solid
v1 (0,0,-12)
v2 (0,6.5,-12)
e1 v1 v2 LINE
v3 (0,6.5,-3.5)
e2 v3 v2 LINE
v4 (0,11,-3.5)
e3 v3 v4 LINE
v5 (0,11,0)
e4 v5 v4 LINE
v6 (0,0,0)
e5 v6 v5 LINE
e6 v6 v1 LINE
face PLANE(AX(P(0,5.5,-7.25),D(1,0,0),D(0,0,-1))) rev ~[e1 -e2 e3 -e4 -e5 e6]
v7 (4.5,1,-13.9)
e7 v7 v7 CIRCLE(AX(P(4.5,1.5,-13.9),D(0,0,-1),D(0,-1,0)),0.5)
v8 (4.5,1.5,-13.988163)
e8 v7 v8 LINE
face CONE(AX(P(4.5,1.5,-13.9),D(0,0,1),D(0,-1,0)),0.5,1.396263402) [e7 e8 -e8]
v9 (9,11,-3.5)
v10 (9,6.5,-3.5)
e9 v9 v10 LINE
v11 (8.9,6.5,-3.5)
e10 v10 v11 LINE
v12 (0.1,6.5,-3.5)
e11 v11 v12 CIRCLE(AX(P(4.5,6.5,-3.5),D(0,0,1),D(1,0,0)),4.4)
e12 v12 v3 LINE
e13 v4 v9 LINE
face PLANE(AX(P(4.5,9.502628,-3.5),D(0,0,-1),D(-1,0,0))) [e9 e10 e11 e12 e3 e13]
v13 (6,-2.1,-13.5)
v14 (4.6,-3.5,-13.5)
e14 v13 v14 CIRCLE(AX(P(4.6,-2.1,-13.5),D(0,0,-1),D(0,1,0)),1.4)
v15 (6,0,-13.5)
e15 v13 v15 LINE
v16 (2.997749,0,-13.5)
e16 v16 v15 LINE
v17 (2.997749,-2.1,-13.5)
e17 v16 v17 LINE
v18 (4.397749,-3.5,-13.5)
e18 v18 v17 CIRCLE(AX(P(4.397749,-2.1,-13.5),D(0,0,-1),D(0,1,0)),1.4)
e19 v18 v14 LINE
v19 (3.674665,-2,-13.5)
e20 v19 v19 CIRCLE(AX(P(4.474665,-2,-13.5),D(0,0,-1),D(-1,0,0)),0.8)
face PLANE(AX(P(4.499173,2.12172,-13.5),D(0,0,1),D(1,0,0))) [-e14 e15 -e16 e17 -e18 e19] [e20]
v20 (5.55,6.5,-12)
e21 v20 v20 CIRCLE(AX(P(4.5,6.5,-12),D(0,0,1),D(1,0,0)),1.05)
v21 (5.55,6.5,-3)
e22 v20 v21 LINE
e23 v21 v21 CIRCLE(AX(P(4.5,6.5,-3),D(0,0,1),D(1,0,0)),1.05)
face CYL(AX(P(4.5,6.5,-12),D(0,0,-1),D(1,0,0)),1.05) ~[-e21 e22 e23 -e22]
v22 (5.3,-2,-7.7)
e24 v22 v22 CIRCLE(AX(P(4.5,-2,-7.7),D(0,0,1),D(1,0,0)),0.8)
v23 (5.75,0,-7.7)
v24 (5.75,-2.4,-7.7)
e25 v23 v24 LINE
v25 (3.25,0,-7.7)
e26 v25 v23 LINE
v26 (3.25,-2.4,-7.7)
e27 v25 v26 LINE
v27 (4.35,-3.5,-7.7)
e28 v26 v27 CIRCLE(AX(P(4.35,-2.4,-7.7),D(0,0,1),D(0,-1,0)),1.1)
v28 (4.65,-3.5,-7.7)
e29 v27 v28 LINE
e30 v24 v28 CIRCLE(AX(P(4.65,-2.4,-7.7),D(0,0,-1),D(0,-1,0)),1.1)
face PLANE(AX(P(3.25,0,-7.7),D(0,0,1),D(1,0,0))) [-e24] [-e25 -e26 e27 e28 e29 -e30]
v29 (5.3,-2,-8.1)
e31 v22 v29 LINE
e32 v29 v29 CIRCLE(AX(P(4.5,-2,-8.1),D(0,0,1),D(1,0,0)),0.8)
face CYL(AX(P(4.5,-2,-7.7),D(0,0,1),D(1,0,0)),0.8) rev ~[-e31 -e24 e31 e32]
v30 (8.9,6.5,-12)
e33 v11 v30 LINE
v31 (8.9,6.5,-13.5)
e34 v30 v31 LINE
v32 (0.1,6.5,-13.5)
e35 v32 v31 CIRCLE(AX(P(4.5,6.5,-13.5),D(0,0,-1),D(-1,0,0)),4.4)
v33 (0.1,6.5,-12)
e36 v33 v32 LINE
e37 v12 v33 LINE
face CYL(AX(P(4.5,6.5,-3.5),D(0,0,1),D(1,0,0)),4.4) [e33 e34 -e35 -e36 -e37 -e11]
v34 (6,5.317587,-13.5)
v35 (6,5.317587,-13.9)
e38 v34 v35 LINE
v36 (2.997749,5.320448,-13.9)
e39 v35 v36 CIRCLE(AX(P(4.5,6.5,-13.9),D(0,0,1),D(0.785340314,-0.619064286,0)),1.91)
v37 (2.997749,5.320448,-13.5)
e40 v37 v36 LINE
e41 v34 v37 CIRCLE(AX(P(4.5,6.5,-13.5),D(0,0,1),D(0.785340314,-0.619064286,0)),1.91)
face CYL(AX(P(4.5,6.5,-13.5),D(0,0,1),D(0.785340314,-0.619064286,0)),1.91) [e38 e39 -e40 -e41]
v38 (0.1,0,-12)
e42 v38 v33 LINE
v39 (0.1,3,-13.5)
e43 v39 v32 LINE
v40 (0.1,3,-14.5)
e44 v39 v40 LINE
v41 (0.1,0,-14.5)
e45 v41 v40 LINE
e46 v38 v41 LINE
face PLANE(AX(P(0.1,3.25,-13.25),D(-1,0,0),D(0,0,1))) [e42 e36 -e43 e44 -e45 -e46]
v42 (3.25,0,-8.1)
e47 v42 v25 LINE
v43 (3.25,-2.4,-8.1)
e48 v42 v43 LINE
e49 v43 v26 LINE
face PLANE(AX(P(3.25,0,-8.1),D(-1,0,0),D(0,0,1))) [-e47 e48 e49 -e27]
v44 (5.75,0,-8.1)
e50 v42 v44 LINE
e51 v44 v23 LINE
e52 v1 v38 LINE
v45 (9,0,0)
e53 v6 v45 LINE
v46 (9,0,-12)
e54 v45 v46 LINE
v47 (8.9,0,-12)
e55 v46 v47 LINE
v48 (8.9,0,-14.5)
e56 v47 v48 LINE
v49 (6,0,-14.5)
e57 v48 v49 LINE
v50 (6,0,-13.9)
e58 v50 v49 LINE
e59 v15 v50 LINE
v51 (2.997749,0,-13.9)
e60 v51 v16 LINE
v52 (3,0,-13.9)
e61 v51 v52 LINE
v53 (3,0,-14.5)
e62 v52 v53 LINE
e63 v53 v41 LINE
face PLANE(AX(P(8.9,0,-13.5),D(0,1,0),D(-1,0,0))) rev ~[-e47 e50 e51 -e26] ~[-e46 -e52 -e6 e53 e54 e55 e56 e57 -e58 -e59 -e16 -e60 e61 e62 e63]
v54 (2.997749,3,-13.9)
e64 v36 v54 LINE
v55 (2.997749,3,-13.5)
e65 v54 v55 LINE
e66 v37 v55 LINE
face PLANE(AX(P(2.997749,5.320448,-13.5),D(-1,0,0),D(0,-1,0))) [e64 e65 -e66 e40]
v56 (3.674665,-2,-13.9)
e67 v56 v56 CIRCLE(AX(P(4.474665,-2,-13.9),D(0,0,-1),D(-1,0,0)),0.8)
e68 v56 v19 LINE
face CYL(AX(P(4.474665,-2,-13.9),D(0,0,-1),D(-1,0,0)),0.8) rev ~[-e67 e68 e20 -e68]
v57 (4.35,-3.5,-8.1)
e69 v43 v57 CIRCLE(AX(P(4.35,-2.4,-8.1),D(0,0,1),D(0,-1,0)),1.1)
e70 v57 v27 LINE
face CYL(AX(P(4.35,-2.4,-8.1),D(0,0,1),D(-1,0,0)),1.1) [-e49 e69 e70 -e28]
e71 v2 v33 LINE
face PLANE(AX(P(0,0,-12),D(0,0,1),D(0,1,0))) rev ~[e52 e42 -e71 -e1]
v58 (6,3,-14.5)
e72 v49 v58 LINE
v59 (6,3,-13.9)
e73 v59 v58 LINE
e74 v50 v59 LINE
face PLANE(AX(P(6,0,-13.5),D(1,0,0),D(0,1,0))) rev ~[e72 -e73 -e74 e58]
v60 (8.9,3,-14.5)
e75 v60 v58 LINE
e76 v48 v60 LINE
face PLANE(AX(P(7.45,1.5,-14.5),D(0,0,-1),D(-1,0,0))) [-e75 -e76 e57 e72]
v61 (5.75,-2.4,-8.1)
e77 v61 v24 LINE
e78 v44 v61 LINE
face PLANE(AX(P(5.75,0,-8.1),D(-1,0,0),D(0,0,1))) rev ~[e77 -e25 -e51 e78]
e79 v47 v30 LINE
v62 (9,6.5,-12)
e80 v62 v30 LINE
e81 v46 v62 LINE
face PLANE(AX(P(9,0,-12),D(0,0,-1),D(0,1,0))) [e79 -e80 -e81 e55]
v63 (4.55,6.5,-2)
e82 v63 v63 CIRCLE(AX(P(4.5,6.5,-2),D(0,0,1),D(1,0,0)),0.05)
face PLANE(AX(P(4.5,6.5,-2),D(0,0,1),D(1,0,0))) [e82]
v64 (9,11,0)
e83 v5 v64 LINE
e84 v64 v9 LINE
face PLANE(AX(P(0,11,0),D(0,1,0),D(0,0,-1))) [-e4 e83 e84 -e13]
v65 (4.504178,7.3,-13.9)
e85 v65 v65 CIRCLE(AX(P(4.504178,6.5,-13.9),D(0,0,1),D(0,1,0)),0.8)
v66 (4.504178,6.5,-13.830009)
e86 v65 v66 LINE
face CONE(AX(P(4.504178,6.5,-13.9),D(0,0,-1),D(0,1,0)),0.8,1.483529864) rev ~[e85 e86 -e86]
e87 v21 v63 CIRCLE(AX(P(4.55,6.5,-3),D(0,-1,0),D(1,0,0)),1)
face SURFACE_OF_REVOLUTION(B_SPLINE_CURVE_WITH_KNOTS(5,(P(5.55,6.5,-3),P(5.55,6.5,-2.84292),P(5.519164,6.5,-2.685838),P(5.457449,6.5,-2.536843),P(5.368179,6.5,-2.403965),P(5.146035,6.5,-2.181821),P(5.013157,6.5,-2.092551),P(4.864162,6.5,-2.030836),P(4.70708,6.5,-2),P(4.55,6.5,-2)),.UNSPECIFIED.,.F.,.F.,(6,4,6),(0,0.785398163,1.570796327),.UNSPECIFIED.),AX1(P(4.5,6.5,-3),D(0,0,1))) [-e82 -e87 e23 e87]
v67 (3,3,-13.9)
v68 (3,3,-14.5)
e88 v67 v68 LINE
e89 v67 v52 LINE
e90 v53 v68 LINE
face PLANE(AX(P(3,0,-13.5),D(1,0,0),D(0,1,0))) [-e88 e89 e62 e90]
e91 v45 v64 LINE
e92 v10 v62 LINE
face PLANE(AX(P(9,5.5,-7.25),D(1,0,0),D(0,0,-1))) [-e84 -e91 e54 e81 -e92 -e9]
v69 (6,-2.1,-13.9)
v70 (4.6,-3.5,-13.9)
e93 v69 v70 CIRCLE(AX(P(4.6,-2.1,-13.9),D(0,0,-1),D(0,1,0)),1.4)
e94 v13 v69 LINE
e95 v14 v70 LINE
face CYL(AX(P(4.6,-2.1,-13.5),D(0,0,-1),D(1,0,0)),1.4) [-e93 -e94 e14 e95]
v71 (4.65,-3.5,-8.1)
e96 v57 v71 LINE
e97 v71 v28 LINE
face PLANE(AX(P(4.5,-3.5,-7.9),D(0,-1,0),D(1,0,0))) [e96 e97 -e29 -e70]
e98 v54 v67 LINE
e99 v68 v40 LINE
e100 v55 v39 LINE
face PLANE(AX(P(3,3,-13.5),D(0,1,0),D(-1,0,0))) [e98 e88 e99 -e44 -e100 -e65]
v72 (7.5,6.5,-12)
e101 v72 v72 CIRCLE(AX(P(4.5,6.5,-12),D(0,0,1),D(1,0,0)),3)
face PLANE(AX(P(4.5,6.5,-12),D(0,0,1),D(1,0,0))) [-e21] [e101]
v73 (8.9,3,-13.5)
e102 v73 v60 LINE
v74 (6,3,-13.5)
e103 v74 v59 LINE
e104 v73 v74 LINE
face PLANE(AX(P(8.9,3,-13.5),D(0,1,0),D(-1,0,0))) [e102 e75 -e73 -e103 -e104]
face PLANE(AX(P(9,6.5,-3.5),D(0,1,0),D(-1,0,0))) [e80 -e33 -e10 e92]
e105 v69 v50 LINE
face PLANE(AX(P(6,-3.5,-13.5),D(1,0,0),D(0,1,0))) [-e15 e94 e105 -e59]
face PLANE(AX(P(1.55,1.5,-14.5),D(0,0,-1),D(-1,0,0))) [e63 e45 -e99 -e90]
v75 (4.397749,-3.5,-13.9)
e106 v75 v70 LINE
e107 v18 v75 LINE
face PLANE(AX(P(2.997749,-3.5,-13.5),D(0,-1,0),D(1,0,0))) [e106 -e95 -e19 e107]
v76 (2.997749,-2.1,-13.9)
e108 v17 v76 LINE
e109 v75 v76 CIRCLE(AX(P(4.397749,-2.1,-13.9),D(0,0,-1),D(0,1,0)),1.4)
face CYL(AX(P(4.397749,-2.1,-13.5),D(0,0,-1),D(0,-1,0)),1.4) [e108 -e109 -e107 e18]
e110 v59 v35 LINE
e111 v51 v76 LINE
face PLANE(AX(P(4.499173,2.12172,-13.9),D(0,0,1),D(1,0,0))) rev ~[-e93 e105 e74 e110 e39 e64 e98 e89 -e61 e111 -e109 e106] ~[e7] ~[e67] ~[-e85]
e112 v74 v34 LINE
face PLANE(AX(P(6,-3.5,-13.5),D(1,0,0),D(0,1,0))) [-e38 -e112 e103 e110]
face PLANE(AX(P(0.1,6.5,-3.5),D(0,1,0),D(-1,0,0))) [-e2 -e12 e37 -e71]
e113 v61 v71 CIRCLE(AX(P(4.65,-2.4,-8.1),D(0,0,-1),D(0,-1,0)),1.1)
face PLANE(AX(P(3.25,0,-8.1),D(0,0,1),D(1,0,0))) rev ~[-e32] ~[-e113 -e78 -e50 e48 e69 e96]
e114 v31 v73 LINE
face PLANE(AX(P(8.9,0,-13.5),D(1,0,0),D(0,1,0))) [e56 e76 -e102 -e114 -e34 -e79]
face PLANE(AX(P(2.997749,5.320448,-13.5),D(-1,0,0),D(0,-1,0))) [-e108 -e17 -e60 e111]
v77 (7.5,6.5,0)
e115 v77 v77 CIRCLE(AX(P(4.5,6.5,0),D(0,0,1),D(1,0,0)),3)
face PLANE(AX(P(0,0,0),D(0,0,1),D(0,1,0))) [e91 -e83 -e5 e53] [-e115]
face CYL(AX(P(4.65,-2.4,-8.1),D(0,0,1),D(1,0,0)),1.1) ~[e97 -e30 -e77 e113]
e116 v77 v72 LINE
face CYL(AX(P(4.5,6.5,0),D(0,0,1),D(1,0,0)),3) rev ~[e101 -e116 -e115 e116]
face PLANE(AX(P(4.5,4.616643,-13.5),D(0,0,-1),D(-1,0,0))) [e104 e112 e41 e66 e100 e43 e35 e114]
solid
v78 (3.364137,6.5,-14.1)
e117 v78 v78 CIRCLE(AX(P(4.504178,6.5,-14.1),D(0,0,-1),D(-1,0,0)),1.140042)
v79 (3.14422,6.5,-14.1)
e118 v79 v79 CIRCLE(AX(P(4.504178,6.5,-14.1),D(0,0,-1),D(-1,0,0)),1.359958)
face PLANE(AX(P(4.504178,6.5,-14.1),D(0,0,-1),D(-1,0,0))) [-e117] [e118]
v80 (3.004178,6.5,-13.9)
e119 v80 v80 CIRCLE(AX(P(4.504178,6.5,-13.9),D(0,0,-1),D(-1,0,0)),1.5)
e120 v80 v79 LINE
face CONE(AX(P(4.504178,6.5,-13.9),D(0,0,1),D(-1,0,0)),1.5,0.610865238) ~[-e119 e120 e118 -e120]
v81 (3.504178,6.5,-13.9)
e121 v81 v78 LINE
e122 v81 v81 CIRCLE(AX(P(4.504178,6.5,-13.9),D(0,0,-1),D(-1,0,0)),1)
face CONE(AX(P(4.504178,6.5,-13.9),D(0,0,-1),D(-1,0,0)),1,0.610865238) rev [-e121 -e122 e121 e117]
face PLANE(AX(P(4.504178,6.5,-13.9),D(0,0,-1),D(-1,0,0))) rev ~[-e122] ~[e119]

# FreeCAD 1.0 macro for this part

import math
import FreeCAD as App
import Part
import Sketcher
Q = App.Units.Quantity


def edges_at(feature, points):
    """Names of the edges that pass closest to the given points."""
    edges = feature.Shape.Edges
    near = lambda p: min(range(len(edges)), key=lambda i: edges[i].distToShape(Part.Vertex(*p))[0])
    return sorted({f"Edge{near(p) + 1}" for p in points})


def faces_at(feature, points):
    """Names of the faces that lie closest to the given points."""
    faces = feature.Shape.Faces
    near = lambda p: min(range(len(faces)), key=lambda i: faces[i].distToShape(Part.Vertex(*p))[0])
    return sorted({f"Face{near(p) + 1}" for p in points})

doc = App.newDocument("Part")
body = doc.addObject("PartDesign::Body", "Body")

sketch1 = doc.addObject("Sketcher::SketchObject", "Sketch")
body.addObject(sketch1)
sketch1.AttachmentSupport = (doc.YZ_Plane, [""])
sketch1.MapMode = "FlatFace"
sketch1.addGeometry([
    Part.LineSegment(App.Vector(11, 0, 0), App.Vector(0, 0, 0)),
    Part.LineSegment(App.Vector(0, 0, 0), App.Vector(0, -14, 0)),
    Part.LineSegment(App.Vector(0, -14, 0), App.Vector(11, -14, 0)),
    Part.LineSegment(App.Vector(11, -14, 0), App.Vector(11, 0, 0)),
], False)
sketch1.addConstraint([
    Sketcher.Constraint("Coincident", 0, 2, 1, 1),
    Sketcher.Constraint("Coincident", 1, 2, 2, 1),
    Sketcher.Constraint("Coincident", 2, 2, 3, 1),
    Sketcher.Constraint("Coincident", 3, 2, 0, 1),
    Sketcher.Constraint("Horizontal", 0),
    Sketcher.Constraint("Vertical", 1),
    Sketcher.Constraint("Horizontal", 2),
    Sketcher.Constraint("Vertical", 3),
    Sketcher.Constraint("Coincident", 0, 2, -1, 1),
    Sketcher.Constraint("DistanceX", 0, 2, 0, 1, 11.0),
    Sketcher.Constraint("DistanceY", 1, 2, 1, 1, 14.5),
])
pad1 = doc.addObject("PartDesign::Pad", "Pad")
body.addObject(pad1)
pad1.Profile = sketch1
pad1.Length = 9

sketch2 = doc.addObject("Sketcher::SketchObject", "Sketch001")
body.addObject(sketch2)
sketch2.AttachmentSupport = (doc.XY_Plane, [""])
sketch2.MapMode = "FlatFace"
sketch2.AttachmentOffset = App.Placement(App.Vector(0, 0, -14.5), App.Rotation())
sketch2.addGeometry([
    Part.LineSegment(App.Vector(9, 6.5, 0), App.Vector(8.9, 6.5, 0)),
    Part.ArcOfCircle(Part.Circle(App.Vector(4.5, 6.5, 0), App.Vector(0, 0, 1), 4.4), math.radians(0), math.radians(180)),
    Part.LineSegment(App.Vector(0.1, 6.5, 0), App.Vector(0, 6.5, 0)),
    Part.LineSegment(App.Vector(0, 6.5, 0), App.Vector(0, 11, 0)),
    Part.LineSegment(App.Vector(0, 11, 0), App.Vector(9, 11, 0)),
    Part.LineSegment(App.Vector(9, 11, 0), App.Vector(9, 6.5, 0)),
], False)
sketch2.addConstraint([
    Sketcher.Constraint("Coincident", 0, 2, 1, 1),
    Sketcher.Constraint("Coincident", 1, 2, 2, 1),
    Sketcher.Constraint("Coincident", 2, 2, 3, 1),
    Sketcher.Constraint("Coincident", 3, 2, 4, 1),
    Sketcher.Constraint("Coincident", 4, 2, 5, 1),
    Sketcher.Constraint("Coincident", 5, 2, 0, 1),
    Sketcher.Constraint("Horizontal", 0),
    Sketcher.Constraint("Horizontal", 2),
    Sketcher.Constraint("Vertical", 3),
    Sketcher.Constraint("Horizontal", 4),
    Sketcher.Constraint("Vertical", 5),
    Sketcher.Constraint("PointOnObject", 2, 2, -2),
    Sketcher.Constraint("Horizontal", 1, 3, 0, 2),
    Sketcher.Constraint("Horizontal", 0, 2, 1, 2),
    Sketcher.Constraint("Equal", 0, 2),
    Sketcher.Constraint("Radius", 1, 4.4),
    Sketcher.Constraint("DistanceX", 4, 1, 4, 2, 9.0),
    Sketcher.Constraint("DistanceY", 3, 1, 3, 2, 4.5),
    Sketcher.Constraint("DistanceY", -1, 1, 3, 2, 11.0),
])
pocket1 = doc.addObject("PartDesign::Pocket", "Pocket")
body.addObject(pocket1)
pocket1.Profile = sketch2
pocket1.Type = "TwoLengths"
pocket1.Length = 21.303941
pocket1.Length2 = 11

sketch3 = doc.addObject("Sketcher::SketchObject", "Sketch002")
body.addObject(sketch3)
sketch3.AttachmentSupport = (doc.YZ_Plane, [""])
sketch3.MapMode = "FlatFace"
sketch3.addGeometry([
    Part.LineSegment(App.Vector(6.5, -14.5, 0), App.Vector(0, -14.5, 0)),
    Part.LineSegment(App.Vector(0, -14.5, 0), App.Vector(0, -12, 0)),
    Part.LineSegment(App.Vector(0, -12, 0), App.Vector(6.5, -12, 0)),
    Part.LineSegment(App.Vector(6.5, -12, 0), App.Vector(6.5, -14.5, 0)),
], False)
sketch3.addConstraint([
    Sketcher.Constraint("Coincident", 0, 2, 1, 1),
    Sketcher.Constraint("Coincident", 1, 2, 2, 1),
    Sketcher.Constraint("Coincident", 2, 2, 3, 1),
    Sketcher.Constraint("Coincident", 3, 2, 0, 1),
    Sketcher.Constraint("Horizontal", 0),
    Sketcher.Constraint("Vertical", 1),
    Sketcher.Constraint("Horizontal", 2),
    Sketcher.Constraint("Vertical", 3),
    Sketcher.Constraint("PointOnObject", 0, 2, -2),
    Sketcher.Constraint("DistanceX", 0, 2, 0, 1, 6.5),
    Sketcher.Constraint("DistanceY", 1, 1, 1, 2, 2.5),
    Sketcher.Constraint("DistanceY", 1, 2, -1, 1, 12.0),
])
pocket2 = doc.addObject("PartDesign::Pocket", "Pocket001")
body.addObject(pocket2)
pocket2.Profile = sketch3
pocket2.Length = 0.1
pocket2.Reversed = True

sketch4 = doc.addObject("Sketcher::SketchObject", "Sketch003")
body.addObject(sketch4)
sketch4.AttachmentSupport = (doc.YZ_Plane, [""])
sketch4.MapMode = "FlatFace"
sketch4.AttachmentOffset = App.Placement(App.Vector(0, 0, 9), App.Rotation())
sketch4.addGeometry([
    Part.LineSegment(App.Vector(6.5, -12, 0), App.Vector(0, -12, 0)),
    Part.LineSegment(App.Vector(0, -12, 0), App.Vector(0, -14.5, 0)),
    Part.LineSegment(App.Vector(0, -14.5, 0), App.Vector(6.5, -14.5, 0)),
    Part.LineSegment(App.Vector(6.5, -14.5, 0), App.Vector(6.5, -12, 0)),
], False)
sketch4.addConstraint([
    Sketcher.Constraint("Coincident", 0, 2, 1, 1),
    Sketcher.Constraint("Coincident", 1, 2, 2, 1),
    Sketcher.Constraint("Coincident", 2, 2, 3, 1),
    Sketcher.Constraint("Coincident", 3, 2, 0, 1),
    Sketcher.Constraint("Horizontal", 0),
    Sketcher.Constraint("Vertical", 1),
    Sketcher.Constraint("Horizontal", 2),
    Sketcher.Constraint("Vertical", 3),
    Sketcher.Constraint("PointOnObject", 0, 2, -2),
    Sketcher.Constraint("DistanceX", 0, 2, 0, 1, 6.5),
    Sketcher.Constraint("DistanceY", 1, 2, 1, 1, 2.5),
    Sketcher.Constraint("DistanceY", 0, 2, -1, 1, 12.0),
])
pocket3 = doc.addObject("PartDesign::Pocket", "Pocket002")
body.addObject(pocket3)
pocket3.Profile = sketch4
pocket3.Length = 0.1

sketch5 = doc.addObject("Sketcher::SketchObject", "Sketch004")
body.addObject(sketch5)
sketch5.AttachmentSupport = (doc.XY_Plane, [""])
sketch5.MapMode = "FlatFace"
sketch5.AttachmentOffset = App.Placement(App.Vector(0, 0, -13.5), App.Rotation())
sketch5.addGeometry([
    Part.LineSegment(App.Vector(8.9, 6.5, 0), App.Vector(8.9, 0, 0)),
    Part.LineSegment(App.Vector(8.9, 0, 0), App.Vector(0.1, 0, 0)),
    Part.LineSegment(App.Vector(0.1, 0, 0), App.Vector(0.1, 6.5, 0)),
    Part.ArcOfCircle(Part.Circle(App.Vector(4.5, 6.5, 0), App.Vector(0, 0, 1), 4.4), math.radians(0), math.radians(180)),
], False)
sketch5.addConstraint([
    Sketcher.Constraint("Coincident", 0, 2, 1, 1),
    Sketcher.Constraint("Coincident", 1, 2, 2, 1),
    Sketcher.Constraint("Tangent", 2, 2, 3, 2),
    Sketcher.Constraint("Tangent", 3, 1, 0, 1),
    Sketcher.Constraint("Vertical", 0),
    Sketcher.Constraint("Horizontal", 1),
    Sketcher.Constraint("Vertical", 2),
    Sketcher.Constraint("PointOnObject", 0, 2, -1),
    Sketcher.Constraint("Radius", 3, 4.4),
    Sketcher.Constraint("DistanceY", 0, 2, 0, 1, 6.5),
    Sketcher.Constraint("DistanceX", -1, 1, 3, 3, 4.5),
])
pocket4 = doc.addObject("PartDesign::Pocket", "Pocket003")
body.addObject(pocket4)
pocket4.Profile = sketch5
pocket4.Length = 1

sketch6 = doc.addObject("Sketcher::SketchObject", "Sketch005")
body.addObject(sketch6)
sketch6.AttachmentSupport = (doc.XY_Plane, [""])
sketch6.MapMode = "FlatFace"
sketch6.AttachmentOffset = App.Placement(App.Vector(0, 0, -13.5), App.Rotation())
sketch6.addGeometry([
    Part.LineSegment(App.Vector(8.9, 3, 0), App.Vector(8.9, 0, 0)),
    Part.LineSegment(App.Vector(8.9, 0, 0), App.Vector(6, 0, 0)),
    Part.LineSegment(App.Vector(6, 0, 0), App.Vector(6, 3, 0)),
    Part.LineSegment(App.Vector(6, 3, 0), App.Vector(8.9, 3, 0)),
    Part.LineSegment(App.Vector(3, 3, 0), App.Vector(3, 0, 0)),
    Part.LineSegment(App.Vector(3, 0, 0), App.Vector(0.1, 0, 0)),
    Part.LineSegment(App.Vector(0.1, 0, 0), App.Vector(0.1, 3, 0)),
    Part.LineSegment(App.Vector(0.1, 3, 0), App.Vector(3, 3, 0)),
], False)
sketch6.addConstraint([
    Sketcher.Constraint("Coincident", 0, 2, 1, 1),
    Sketcher.Constraint("Coincident", 1, 2, 2, 1),
    Sketcher.Constraint("Coincident", 2, 2, 3, 1),
    Sketcher.Constraint("Coincident", 3, 2, 0, 1),
    Sketcher.Constraint("Coincident", 4, 2, 5, 1),
    Sketcher.Constraint("Coincident", 5, 2, 6, 1),
    Sketcher.Constraint("Coincident", 6, 2, 7, 1),
    Sketcher.Constraint("Coincident", 7, 2, 4, 1),
    Sketcher.Constraint("Vertical", 0),
    Sketcher.Constraint("Horizontal", 1),
    Sketcher.Constraint("Vertical", 2),
    Sketcher.Constraint("Horizontal", 3),
    Sketcher.Constraint("Vertical", 4),
    Sketcher.Constraint("Horizontal", 5),
    Sketcher.Constraint("Vertical", 6),
    Sketcher.Constraint("Horizontal", 7),
    Sketcher.Constraint("PointOnObject", 0, 2, -1),
    Sketcher.Constraint("PointOnObject", 4, 2, -1),
    Sketcher.Constraint("Horizontal", 3, 2, 6, 2),
    Sketcher.Constraint("Equal", 3, 5),
    Sketcher.Constraint("DistanceY", 0, 2, 0, 1, 3.0),
    Sketcher.Constraint("DistanceX", 1, 2, 1, 1, 2.9),
    Sketcher.Constraint("DistanceX", -1, 1, 1, 2, 6.0),
    Sketcher.Constraint("DistanceX", -1, 1, 4, 2, 3.0),
])
pad2 = doc.addObject("PartDesign::Pad", "Pad001")
body.addObject(pad2)
pad2.Profile = sketch6
pad2.Length = 1
pad2.Reversed = True

sketch7 = doc.addObject("Sketcher::SketchObject", "Sketch006")
body.addObject(sketch7)
sketch7.AttachmentSupport = (doc.XY_Plane, [""])
sketch7.MapMode = "FlatFace"
sketch7.addGeometry(Part.Circle(App.Vector(4.5, 6.5, 0), App.Vector(0, 0, 1), 3), False)
sketch7.addConstraint([
    Sketcher.Constraint("Diameter", 0, 6.0),
    Sketcher.Constraint("DistanceX", -1, 1, 0, 3, 4.5),
    Sketcher.Constraint("DistanceY", -1, 1, 0, 3, 6.5),
])
pocket5 = doc.addObject("PartDesign::Pocket", "Pocket004")
body.addObject(pocket5)
pocket5.Profile = sketch7
pocket5.Length = 12
body2 = doc.addObject("PartDesign::Body", "Body001")

sketch8 = doc.addObject("Sketcher::SketchObject", "Sketch007")
body2.addObject(sketch8)
sketch8.AttachmentSupport = (doc.getObject("XY_Plane001"), [""])
sketch8.MapMode = "FlatFace"
sketch8.AttachmentOffset = App.Placement(App.Vector(0, 0, -13.5), App.Rotation())
sketch8.addGeometry([
    Part.ArcOfCircle(Part.Circle(App.Vector(4.5, 6.5, 0), App.Vector(0, 0, 1), 1.9), math.radians(-38), math.radians(218)),
    Part.LineSegment(App.Vector(6, 5.3, 0), App.Vector(6, -3.5, 0)),
    Part.LineSegment(App.Vector(6, -3.5, 0), App.Vector(3, -3.5, 0)),
    Part.LineSegment(App.Vector(3, -3.5, 0), App.Vector(3, 5.3, 0)),
], False)
sketch8.addConstraint([
    Sketcher.Constraint("Coincident", 0, 1, 1, 1),
    Sketcher.Constraint("Coincident", 1, 2, 2, 1),
    Sketcher.Constraint("Coincident", 2, 2, 3, 1),
    Sketcher.Constraint("Coincident", 3, 2, 0, 2),
    Sketcher.Constraint("Vertical", 1),
    Sketcher.Constraint("Horizontal", 2),
    Sketcher.Constraint("Vertical", 3),
    Sketcher.Constraint("Radius", 0, 1.91),
    Sketcher.Constraint("DistanceX", -1, 1, 0, 1, 6.0),
    Sketcher.Constraint("DistanceY", 1, 2, 0, 3, 10.0),
    Sketcher.Constraint("DistanceX", -1, 1, 0, 3, 4.5),
    Sketcher.Constraint("DistanceY", -1, 1, 0, 3, 6.5),
    Sketcher.Constraint("DistanceX", 2, 2, 2, 1, 3.002251),
])
pad3 = doc.addObject("PartDesign::Pad", "Pad002")
body2.addObject(pad3)
pad3.Profile = sketch8
pad3.Length = 0.4
pad3.Reversed = True
doc.recompute()

boolean = doc.addObject("PartDesign::Boolean", "Boolean")
body.addObject(boolean)
boolean.Type = "Fuse"
boolean.addObjects([body2])

sketch9 = doc.addObject("Sketcher::SketchObject", "Sketch008")
body.addObject(sketch9)
sketch9.AttachmentSupport = (doc.YZ_Plane, [""])
sketch9.MapMode = "FlatFace"
sketch9.AttachmentOffset = App.Placement(App.Vector(0, 0, 4.5), App.Rotation())
sketch9.addGeometry([
    Part.LineSegment(App.Vector(1.5, -13.9, 0), App.Vector(1, -13.9, 0)),
    Part.LineSegment(App.Vector(1, -13.9, 0), App.Vector(1.5, -13.99, 0)),
    Part.LineSegment(App.Vector(1.5, -13.99, 0), App.Vector(1.5, -13.9, 0)),
], False)
sketch9.addGeometry(Part.LineSegment(App.Vector(1.5, -13.9, 0), App.Vector(1.5, -13.99, 0)), True)
sketch9.addConstraint([
    Sketcher.Constraint("Coincident", 0, 2, 1, 1),
    Sketcher.Constraint("Coincident", 1, 2, 2, 1),
    Sketcher.Constraint("Coincident", 2, 2, 0, 1),
    Sketcher.Constraint("Horizontal", 0),
    Sketcher.Constraint("Vertical", 2),
    Sketcher.Constraint("Vertical", 3),
    Sketcher.Constraint("Coincident", 3, 1, 2, 2),
    Sketcher.Constraint("Equal", 2, 3),
    Sketcher.Constraint("Angle", 1, Q("-10 deg")),
    Sketcher.Constraint("DistanceX", 0, 2, 0, 1, 0.5),
    Sketcher.Constraint("DistanceX", -1, 1, 0, 2, 1.0),
    Sketcher.Constraint("DistanceY", 0, 2, -1, 1, 13.9),
])
revolution = doc.addObject("PartDesign::Revolution", "Revolution")
body.addObject(revolution)
revolution.Profile = sketch9
revolution.ReferenceAxis = (sketch9, ["Axis0"])
revolution.Angle = 360
doc.recompute()

fillet = doc.addObject("PartDesign::Fillet", "Fillet")
body.addObject(fillet)
fillet.Base = (revolution, edges_at(revolution, [(2.998, -3.5, -13.7), (6, -3.5, -13.7)]))
fillet.Radius = 1.4

sketch10 = doc.addObject("Sketcher::SketchObject", "Sketch009")
body.addObject(sketch10)
sketch10.AttachmentSupport = (doc.XY_Plane, [""])
sketch10.MapMode = "FlatFace"
sketch10.AttachmentOffset = App.Placement(App.Vector(0, 0, -13.9), App.Rotation())
sketch10.addGeometry(Part.Circle(App.Vector(4.5, -2, 0), App.Vector(0, 0, 1), 0.8), False)
sketch10.addConstraint([
    Sketcher.Constraint("Diameter", 0, 1.6),
    Sketcher.Constraint("DistanceY", 0, 3, -1, 1, 2.0),
    Sketcher.Constraint("DistanceX", -1, 1, 0, 3, 4.474665),
])
pocket6 = doc.addObject("PartDesign::Pocket", "Pocket005")
body.addObject(pocket6)
pocket6.Profile = sketch10
pocket6.Length = 0.4
pocket6.Reversed = True

sketch11 = doc.addObject("Sketcher::SketchObject", "Sketch010")
body.addObject(sketch11)
sketch11.AttachmentSupport = (doc.YZ_Plane, [""])
sketch11.MapMode = "FlatFace"
sketch11.AttachmentOffset = App.Placement(App.Vector(0, 0, 4.504178), App.Rotation())
sketch11.addGeometry([
    Part.LineSegment(App.Vector(6.5, -13.9, 0), App.Vector(7.3, -13.9, 0)),
    Part.LineSegment(App.Vector(7.3, -13.9, 0), App.Vector(6.5, -13.83, 0)),
    Part.LineSegment(App.Vector(6.5, -13.83, 0), App.Vector(6.5, -13.9, 0)),
], False)
sketch11.addGeometry(Part.LineSegment(App.Vector(6.5, -13.9, 0), App.Vector(6.5, -13.83, 0)), True)
sketch11.addConstraint([
    Sketcher.Constraint("Coincident", 0, 2, 1, 1),
    Sketcher.Constraint("Coincident", 1, 2, 2, 1),
    Sketcher.Constraint("Coincident", 2, 2, 0, 1),
    Sketcher.Constraint("Horizontal", 0),
    Sketcher.Constraint("Vertical", 2),
    Sketcher.Constraint("Vertical", 3),
    Sketcher.Constraint("Coincident", 3, 1, 2, 2),
    Sketcher.Constraint("Equal", 2, 3),
    Sketcher.Constraint("Angle", 1, Q("175 deg")),
    Sketcher.Constraint("DistanceX", 0, 1, 0, 2, 0.8),
    Sketcher.Constraint("DistanceX", -1, 1, 0, 2, 7.3),
    Sketcher.Constraint("DistanceY", 0, 2, -1, 1, 13.9),
])
groove = doc.addObject("PartDesign::Groove", "Groove")
body.addObject(groove)
groove.Profile = sketch11
groove.ReferenceAxis = (sketch11, ["Axis0"])
groove.Angle = 360

sketch12 = doc.addObject("Sketcher::SketchObject", "Sketch011")
body.addObject(sketch12)
sketch12.AttachmentSupport = (doc.XZ_Plane, [""])
sketch12.MapMode = "FlatFace"
sketch12.addGeometry([
    Part.LineSegment(App.Vector(3.25, -7.7, 0), App.Vector(3.25, -8.1, 0)),
    Part.LineSegment(App.Vector(3.25, -8.1, 0), App.Vector(5.75, -8.1, 0)),
    Part.LineSegment(App.Vector(5.75, -8.1, 0), App.Vector(5.75, -7.7, 0)),
    Part.LineSegment(App.Vector(5.75, -7.7, 0), App.Vector(3.25, -7.7, 0)),
], False)
sketch12.addConstraint([
    Sketcher.Constraint("Coincident", 0, 2, 1, 1),
    Sketcher.Constraint("Coincident", 1, 2, 2, 1),
    Sketcher.Constraint("Coincident", 2, 2, 3, 1),
    Sketcher.Constraint("Coincident", 3, 2, 0, 1),
    Sketcher.Constraint("Vertical", 0),
    Sketcher.Constraint("Horizontal", 1),
    Sketcher.Constraint("Vertical", 2),
    Sketcher.Constraint("Horizontal", 3),
    Sketcher.Constraint("DistanceX", 1, 1, 1, 2, 2.5),
    Sketcher.Constraint("DistanceY", 0, 2, 0, 1, 0.4),
    Sketcher.Constraint("DistanceY", 0, 2, -1, 1, 8.1),
    Sketcher.Constraint("DistanceX", -1, 1, 0, 2, 3.25),
])
pad4 = doc.addObject("PartDesign::Pad", "Pad003")
body.addObject(pad4)
pad4.Profile = sketch12
pad4.Length = 3.5

sketch13 = doc.addObject("Sketcher::SketchObject", "Sketch012")
body.addObject(sketch13)
sketch13.AttachmentSupport = (doc.XY_Plane, [""])
sketch13.MapMode = "FlatFace"
sketch13.AttachmentOffset = App.Placement(App.Vector(0, 0, -7.7), App.Rotation())
sketch13.addGeometry(Part.Circle(App.Vector(4.5, -2, 0), App.Vector(0, 0, 1), 0.8), False)
sketch13.addConstraint([
    Sketcher.Constraint("Diameter", 0, 1.6),
    Sketcher.Constraint("DistanceY", 0, 3, -1, 1, 2.0),
    Sketcher.Constraint("DistanceX", -1, 1, 0, 3, 4.5),
])
pocket7 = doc.addObject("PartDesign::Pocket", "Pocket006")
body.addObject(pocket7)
pocket7.Profile = sketch13
pocket7.Length = 0.4
doc.recompute()

fillet2 = doc.addObject("PartDesign::Fillet", "Fillet001")
body.addObject(fillet2)
fillet2.Base = (pocket7, edges_at(pocket7, [(3.25, -3.5, -7.9), (5.75, -3.5, -7.9)]))
fillet2.Radius = 1.1

sketch14 = doc.addObject("Sketcher::SketchObject", "Sketch013")
body.addObject(sketch14)
sketch14.AttachmentSupport = (doc.XY_Plane, [""])
sketch14.MapMode = "FlatFace"
sketch14.AttachmentOffset = App.Placement(App.Vector(0, 0, -12), App.Rotation())
sketch14.addGeometry(Part.Circle(App.Vector(4.5, 6.5, 0), App.Vector(0, 0, 1), 1.1), False)
sketch14.addConstraint([
    Sketcher.Constraint("Diameter", 0, 2.1),
    Sketcher.Constraint("DistanceX", -1, 1, 0, 3, 4.5),
    Sketcher.Constraint("DistanceY", -1, 1, 0, 3, 6.5),
])
pad5 = doc.addObject("PartDesign::Pad", "Pad004")
body.addObject(pad5)
pad5.Profile = sketch14
pad5.Length = 10
doc.recompute()

fillet3 = doc.addObject("PartDesign::Fillet", "Fillet002")
body.addObject(fillet3)
fillet3.Base = (pad5, edges_at(pad5, [(3.45, 6.5, -2)]))
fillet3.Radius = 1
body3 = doc.addObject("PartDesign::Body", "Body002")

sketch15 = doc.addObject("Sketcher::SketchObject", "Sketch014")
body3.addObject(sketch15)
sketch15.AttachmentSupport = (doc.getObject("XY_Plane002"), [""])
sketch15.MapMode = "FlatFace"
sketch15.AttachmentOffset = App.Placement(App.Vector(0, 0, -13.9), App.Rotation())
sketch15.addGeometry([
    Part.Circle(App.Vector(4.5, 6.5, 0), App.Vector(0, 0, 1), 1.5),
    Part.Circle(App.Vector(4.5, 6.5, 0), App.Vector(0, 0, 1), 1),
], False)
sketch15.addConstraint([
    Sketcher.Constraint("Coincident", 1, 3, 0, 3),
    Sketcher.Constraint("Diameter", 0, 3.0),
    Sketcher.Constraint("Diameter", 1, 2.0),
    Sketcher.Constraint("DistanceY", -1, 1, 0, 3, 6.5),
    Sketcher.Constraint("DistanceX", -1, 1, 0, 3, 4.504178),
])
pad6 = doc.addObject("PartDesign::Pad", "Pad005")
body3.addObject(pad6)
pad6.Profile = sketch15
pad6.Length = 0.2
pad6.Reversed = True
doc.recompute()

datumplane = doc.addObject("PartDesign::Plane", "DatumPlane")
body3.addObject(datumplane)
datumplane.AttachmentSupport = (doc.getObject("XY_Plane002"), [""])
datumplane.MapMode = "FlatFace"
datumplane.AttachmentOffset = App.Placement(App.Vector(0, 0, -13.9), App.Rotation())
draft = doc.addObject("PartDesign::Draft", "Draft")
body3.addObject(draft)
draft.Base = (pad6, faces_at(pad6, [(6.004, 6.5, -14), (5.504, 6.5, -14)]))
draft.NeutralPlane = (datumplane, [""])
draft.Angle = 35
draft.Reversed = True

doc.recompute()
